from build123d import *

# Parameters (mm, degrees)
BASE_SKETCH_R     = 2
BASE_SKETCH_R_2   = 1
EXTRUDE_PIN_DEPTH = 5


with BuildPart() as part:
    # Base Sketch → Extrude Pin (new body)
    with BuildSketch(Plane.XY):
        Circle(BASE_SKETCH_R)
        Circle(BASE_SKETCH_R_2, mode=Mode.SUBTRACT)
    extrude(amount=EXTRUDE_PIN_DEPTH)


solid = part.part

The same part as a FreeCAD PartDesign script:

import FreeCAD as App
import Part
import Sketcher

V = App.Vector
Q = App.Units.Quantity

doc = App.newDocument("Part")
body = doc.addObject("PartDesign::Body", "Body")

sketch1 = body.newObject("Sketcher::SketchObject", "Sketch")
sketch1.AttachmentSupport = (doc.getObject("XY_Plane"), [""])
sketch1.MapMode = "FlatFace"
sketch1.addGeometry(Part.Circle(V(0, 0, 0), V(0, 0, 1), 2), False)
sketch1.addGeometry(Part.Circle(V(0, 0, 0), V(0, 0, 1), 1), False)
sketch1.addConstraint(Sketcher.Constraint("Coincident", 0, 3, -1, 1))
sketch1.addConstraint(Sketcher.Constraint("Coincident", 1, 3, -1, 1))
sketch1.addConstraint(Sketcher.Constraint("Diameter", 0, Q("4 mm")))
sketch1.addConstraint(Sketcher.Constraint("Diameter", 1, Q("2 mm")))
pad1 = body.newObject("PartDesign::Pad", "Pad")
pad1.Profile = sketch1
pad1.Length = 5

doc.recompute()
